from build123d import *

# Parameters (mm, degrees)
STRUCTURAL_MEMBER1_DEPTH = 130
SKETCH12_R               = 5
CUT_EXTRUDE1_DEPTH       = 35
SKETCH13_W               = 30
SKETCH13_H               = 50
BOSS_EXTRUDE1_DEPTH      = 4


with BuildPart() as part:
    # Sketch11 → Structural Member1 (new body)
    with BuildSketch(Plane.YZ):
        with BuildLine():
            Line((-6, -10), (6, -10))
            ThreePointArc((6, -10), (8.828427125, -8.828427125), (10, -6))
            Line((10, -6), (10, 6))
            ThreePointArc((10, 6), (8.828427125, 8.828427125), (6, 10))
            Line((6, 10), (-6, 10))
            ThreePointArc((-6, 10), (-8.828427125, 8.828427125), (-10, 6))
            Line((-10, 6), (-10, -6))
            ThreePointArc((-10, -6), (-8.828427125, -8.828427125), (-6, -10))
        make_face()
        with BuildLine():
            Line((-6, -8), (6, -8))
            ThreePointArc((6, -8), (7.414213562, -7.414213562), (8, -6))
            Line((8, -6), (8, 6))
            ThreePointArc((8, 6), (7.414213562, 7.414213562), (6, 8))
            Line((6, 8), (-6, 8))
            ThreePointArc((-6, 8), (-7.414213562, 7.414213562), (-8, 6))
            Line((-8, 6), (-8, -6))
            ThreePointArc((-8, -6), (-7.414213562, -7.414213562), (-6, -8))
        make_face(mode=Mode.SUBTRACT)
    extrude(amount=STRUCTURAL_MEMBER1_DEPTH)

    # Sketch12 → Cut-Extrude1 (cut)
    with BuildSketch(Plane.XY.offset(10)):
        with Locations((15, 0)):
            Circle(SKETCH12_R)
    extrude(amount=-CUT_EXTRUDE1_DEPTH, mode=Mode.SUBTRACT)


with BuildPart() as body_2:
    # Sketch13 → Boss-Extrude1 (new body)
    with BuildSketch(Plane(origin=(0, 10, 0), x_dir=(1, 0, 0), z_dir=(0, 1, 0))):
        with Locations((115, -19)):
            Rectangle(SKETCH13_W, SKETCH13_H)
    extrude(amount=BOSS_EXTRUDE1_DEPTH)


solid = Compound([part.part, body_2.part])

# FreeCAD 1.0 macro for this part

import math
import FreeCAD as App
import Part
import Sketcher

V = App.Vector
Q = App.Units.Quantity


def add_polygon(sketch, points):
    """Adds a closed chain of lines whose ends are joined by coincident constraints."""
    first, n = sketch.GeometryCount, len(points)
    for a, b in zip(points, points[1:] + points[:1]):
        sketch.addGeometry(Part.LineSegment(App.Vector(*a, 0), App.Vector(*b, 0)), False)
    for i in range(n):
        sketch.addConstraint(Sketcher.Constraint("Coincident", first + i, 2, first + (i + 1) % n, 1))

doc = App.newDocument("Part")
body = doc.addObject("PartDesign::Body", "Body")

# Sketch on YZ plane
sketch1 = body.newObject("Sketcher::SketchObject", "Sketch")
sketch1.AttachmentSupport = (doc.getObject("YZ_Plane"), [""])
sketch1.MapMode = "FlatFace"
sketch1.addGeometry(Part.LineSegment(V(-6, -10, 0), V(6, -10, 0)), False)
sketch1.addGeometry(Part.ArcOfCircle(Part.Circle(V(6, -6, 0), V(0, 0, 1), 4), math.radians(-90), math.radians(0)), False)
sketch1.addGeometry(Part.LineSegment(V(10, -6, 0), V(10, 6, 0)), False)
sketch1.addGeometry(Part.ArcOfCircle(Part.Circle(V(6, 6, 0), V(0, 0, 1), 4), math.radians(0), math.radians(90)), False)
sketch1.addGeometry(Part.LineSegment(V(6, 10, 0), V(-6, 10, 0)), False)
sketch1.addGeometry(Part.ArcOfCircle(Part.Circle(V(-6, 6, 0), V(0, 0, 1), 4), math.radians(90), math.radians(180)), False)
sketch1.addGeometry(Part.LineSegment(V(-10, 6, 0), V(-10, -6, 0)), False)
sketch1.addGeometry(Part.ArcOfCircle(Part.Circle(V(-6, -6, 0), V(0, 0, 1), 4), math.radians(180), math.radians(270)), False)
sketch1.addGeometry(Part.LineSegment(V(6, -8, 0), V(-6, -8, 0)), False)
sketch1.addGeometry(Part.ArcOfCircle(Part.Circle(V(-6, -6, 0), V(0, 0, 1), 2), math.radians(-180), math.radians(-90)), False)
sketch1.addGeometry(Part.LineSegment(V(-8, -6, 0), V(-8, 6, 0)), False)
sketch1.addGeometry(Part.ArcOfCircle(Part.Circle(V(-6, 6, 0), V(0, 0, 1), 2), math.radians(90), math.radians(180)), False)
sketch1.addGeometry(Part.LineSegment(V(-6, 8, 0), V(6, 8, 0)), False)
sketch1.addGeometry(Part.ArcOfCircle(Part.Circle(V(6, 6, 0), V(0, 0, 1), 2), math.radians(0), math.radians(90)), False)
sketch1.addGeometry(Part.LineSegment(V(8, 6, 0), V(8, -6, 0)), False)
sketch1.addGeometry(Part.ArcOfCircle(Part.Circle(V(6, -6, 0), V(0, 0, 1), 2), math.radians(-90), math.radians(0)), False)
sketch1.addConstraint(Sketcher.Constraint("Tangent", 0, 2, 1, 1))
sketch1.addConstraint(Sketcher.Constraint("Tangent", 1, 2, 2, 1))
sketch1.addConstraint(Sketcher.Constraint("Tangent", 2, 2, 3, 1))
sketch1.addConstraint(Sketcher.Constraint("Tangent", 3, 2, 4, 1))
sketch1.addConstraint(Sketcher.Constraint("Tangent", 4, 2, 5, 1))
sketch1.addConstraint(Sketcher.Constraint("Tangent", 5, 2, 6, 1))
sketch1.addConstraint(Sketcher.Constraint("Tangent", 6, 2, 7, 1))
sketch1.addConstraint(Sketcher.Constraint("Tangent", 7, 2, 0, 1))
sketch1.addConstraint(Sketcher.Constraint("Tangent", 8, 2, 9, 2))
sketch1.addConstraint(Sketcher.Constraint("Tangent", 9, 1, 10, 1))
sketch1.addConstraint(Sketcher.Constraint("Tangent", 10, 2, 11, 2))
sketch1.addConstraint(Sketcher.Constraint("Tangent", 11, 1, 12, 1))
sketch1.addConstraint(Sketcher.Constraint("Tangent", 12, 2, 13, 2))
sketch1.addConstraint(Sketcher.Constraint("Tangent", 13, 1, 14, 1))
sketch1.addConstraint(Sketcher.Constraint("Tangent", 14, 2, 15, 2))
sketch1.addConstraint(Sketcher.Constraint("Tangent", 15, 1, 8, 1))
sketch1.addConstraint(Sketcher.Constraint("Horizontal", 0))
sketch1.addConstraint(Sketcher.Constraint("Vertical", 2))
sketch1.addConstraint(Sketcher.Constraint("Horizontal", 4))
sketch1.addConstraint(Sketcher.Constraint("Vertical", 6))
sketch1.addConstraint(Sketcher.Constraint("Horizontal", 8))
sketch1.addConstraint(Sketcher.Constraint("Vertical", 10))
sketch1.addConstraint(Sketcher.Constraint("Horizontal", 12))
sketch1.addConstraint(Sketcher.Constraint("Vertical", 14))
sketch1.addConstraint(Sketcher.Constraint("Coincident", 9, 3, 7, 3))
sketch1.addConstraint(Sketcher.Constraint("Coincident", 11, 3, 5, 3))
sketch1.addConstraint(Sketcher.Constraint("Coincident", 13, 3, 3, 3))
sketch1.addConstraint(Sketcher.Constraint("Equal", 1, 3))
sketch1.addConstraint(Sketcher.Constraint("Equal", 3, 5))
sketch1.addConstraint(Sketcher.Constraint("Equal", 5, 7))
sketch1.addConstraint(Sketcher.Constraint("Equal", 13, 15))
sketch1.addConstraint(Sketcher.Constraint("Symmetric", 1, 3, 5, 3, -1, 1))
sketch1.addConstraint(Sketcher.Constraint("Equal", 12, 2))
sketch1.addConstraint(Sketcher.Constraint("Radius", 1, Q("4 mm")))
sketch1.addConstraint(Sketcher.Constraint("Radius", 9, Q("2 mm")))
sketch1.addConstraint(Sketcher.Constraint("DistanceX", 0, 1, 0, 2, Q("12 mm")))
pad1 = body.newObject("PartDesign::Pad", "Pad")
pad1.Profile = sketch1
pad1.Length = 130

# Sketch on XY plane
sketch2 = body.newObject("Sketcher::SketchObject", "Sketch001")
sketch2.AttachmentSupport = (doc.getObject("XY_Plane"), [""])
sketch2.MapMode = "FlatFace"
sketch2.AttachmentOffset = App.Placement(V(0, 0, 10), App.Rotation())
sketch2.addGeometry(Part.Circle(V(15, 0, 0), V(0, 0, 1), 5), False)
sketch2.addConstraint(Sketcher.Constraint("PointOnObject", 0, 3, -1))
sketch2.addConstraint(Sketcher.Constraint("Diameter", 0, Q("10 mm")))
sketch2.addConstraint(Sketcher.Constraint("DistanceX", -1, 1, 0, 3, Q("15 mm")))
pocket1 = body.newObject("PartDesign::Pocket", "Pocket")
pocket1.Profile = sketch2
pocket1.Length = 35
body2 = doc.addObject("PartDesign::Body", "Body001")

# Sketch on XZ plane
sketch3 = body2.newObject("Sketcher::SketchObject", "Sketch002")
sketch3.AttachmentSupport = (doc.getObject("XZ_Plane001"), [""])
sketch3.MapMode = "FlatFace"
sketch3.AttachmentOffset = App.Placement(V(0, 0, -10), App.Rotation())
add_polygon(sketch3, [(100, -6), (100, 44), (130, 44), (130, -6)])  # lines 0-3
sketch3.addConstraint(Sketcher.Constraint("Vertical", 0))
sketch3.addConstraint(Sketcher.Constraint("Horizontal", 1))
sketch3.addConstraint(Sketcher.Constraint("Vertical", 2))
sketch3.addConstraint(Sketcher.Constraint("Horizontal", 3))
sketch3.addConstraint(Sketcher.Constraint("DistanceX", 1, 1, 1, 2, Q("30 mm")))
sketch3.addConstraint(Sketcher.Constraint("DistanceY", 0, 1, 0, 2, Q("50 mm")))
sketch3.addConstraint(Sketcher.Constraint("DistanceX", -1, 1, 0, 2, Q("100 mm")))
sketch3.addConstraint(Sketcher.Constraint("DistanceY", -1, 1, 0, 2, Q("44 mm")))
pad2 = body2.newObject("PartDesign::Pad", "Pad001")
pad2.Profile = sketch3
pad2.Length = 4
pad2.Reversed = True

doc.recompute()
